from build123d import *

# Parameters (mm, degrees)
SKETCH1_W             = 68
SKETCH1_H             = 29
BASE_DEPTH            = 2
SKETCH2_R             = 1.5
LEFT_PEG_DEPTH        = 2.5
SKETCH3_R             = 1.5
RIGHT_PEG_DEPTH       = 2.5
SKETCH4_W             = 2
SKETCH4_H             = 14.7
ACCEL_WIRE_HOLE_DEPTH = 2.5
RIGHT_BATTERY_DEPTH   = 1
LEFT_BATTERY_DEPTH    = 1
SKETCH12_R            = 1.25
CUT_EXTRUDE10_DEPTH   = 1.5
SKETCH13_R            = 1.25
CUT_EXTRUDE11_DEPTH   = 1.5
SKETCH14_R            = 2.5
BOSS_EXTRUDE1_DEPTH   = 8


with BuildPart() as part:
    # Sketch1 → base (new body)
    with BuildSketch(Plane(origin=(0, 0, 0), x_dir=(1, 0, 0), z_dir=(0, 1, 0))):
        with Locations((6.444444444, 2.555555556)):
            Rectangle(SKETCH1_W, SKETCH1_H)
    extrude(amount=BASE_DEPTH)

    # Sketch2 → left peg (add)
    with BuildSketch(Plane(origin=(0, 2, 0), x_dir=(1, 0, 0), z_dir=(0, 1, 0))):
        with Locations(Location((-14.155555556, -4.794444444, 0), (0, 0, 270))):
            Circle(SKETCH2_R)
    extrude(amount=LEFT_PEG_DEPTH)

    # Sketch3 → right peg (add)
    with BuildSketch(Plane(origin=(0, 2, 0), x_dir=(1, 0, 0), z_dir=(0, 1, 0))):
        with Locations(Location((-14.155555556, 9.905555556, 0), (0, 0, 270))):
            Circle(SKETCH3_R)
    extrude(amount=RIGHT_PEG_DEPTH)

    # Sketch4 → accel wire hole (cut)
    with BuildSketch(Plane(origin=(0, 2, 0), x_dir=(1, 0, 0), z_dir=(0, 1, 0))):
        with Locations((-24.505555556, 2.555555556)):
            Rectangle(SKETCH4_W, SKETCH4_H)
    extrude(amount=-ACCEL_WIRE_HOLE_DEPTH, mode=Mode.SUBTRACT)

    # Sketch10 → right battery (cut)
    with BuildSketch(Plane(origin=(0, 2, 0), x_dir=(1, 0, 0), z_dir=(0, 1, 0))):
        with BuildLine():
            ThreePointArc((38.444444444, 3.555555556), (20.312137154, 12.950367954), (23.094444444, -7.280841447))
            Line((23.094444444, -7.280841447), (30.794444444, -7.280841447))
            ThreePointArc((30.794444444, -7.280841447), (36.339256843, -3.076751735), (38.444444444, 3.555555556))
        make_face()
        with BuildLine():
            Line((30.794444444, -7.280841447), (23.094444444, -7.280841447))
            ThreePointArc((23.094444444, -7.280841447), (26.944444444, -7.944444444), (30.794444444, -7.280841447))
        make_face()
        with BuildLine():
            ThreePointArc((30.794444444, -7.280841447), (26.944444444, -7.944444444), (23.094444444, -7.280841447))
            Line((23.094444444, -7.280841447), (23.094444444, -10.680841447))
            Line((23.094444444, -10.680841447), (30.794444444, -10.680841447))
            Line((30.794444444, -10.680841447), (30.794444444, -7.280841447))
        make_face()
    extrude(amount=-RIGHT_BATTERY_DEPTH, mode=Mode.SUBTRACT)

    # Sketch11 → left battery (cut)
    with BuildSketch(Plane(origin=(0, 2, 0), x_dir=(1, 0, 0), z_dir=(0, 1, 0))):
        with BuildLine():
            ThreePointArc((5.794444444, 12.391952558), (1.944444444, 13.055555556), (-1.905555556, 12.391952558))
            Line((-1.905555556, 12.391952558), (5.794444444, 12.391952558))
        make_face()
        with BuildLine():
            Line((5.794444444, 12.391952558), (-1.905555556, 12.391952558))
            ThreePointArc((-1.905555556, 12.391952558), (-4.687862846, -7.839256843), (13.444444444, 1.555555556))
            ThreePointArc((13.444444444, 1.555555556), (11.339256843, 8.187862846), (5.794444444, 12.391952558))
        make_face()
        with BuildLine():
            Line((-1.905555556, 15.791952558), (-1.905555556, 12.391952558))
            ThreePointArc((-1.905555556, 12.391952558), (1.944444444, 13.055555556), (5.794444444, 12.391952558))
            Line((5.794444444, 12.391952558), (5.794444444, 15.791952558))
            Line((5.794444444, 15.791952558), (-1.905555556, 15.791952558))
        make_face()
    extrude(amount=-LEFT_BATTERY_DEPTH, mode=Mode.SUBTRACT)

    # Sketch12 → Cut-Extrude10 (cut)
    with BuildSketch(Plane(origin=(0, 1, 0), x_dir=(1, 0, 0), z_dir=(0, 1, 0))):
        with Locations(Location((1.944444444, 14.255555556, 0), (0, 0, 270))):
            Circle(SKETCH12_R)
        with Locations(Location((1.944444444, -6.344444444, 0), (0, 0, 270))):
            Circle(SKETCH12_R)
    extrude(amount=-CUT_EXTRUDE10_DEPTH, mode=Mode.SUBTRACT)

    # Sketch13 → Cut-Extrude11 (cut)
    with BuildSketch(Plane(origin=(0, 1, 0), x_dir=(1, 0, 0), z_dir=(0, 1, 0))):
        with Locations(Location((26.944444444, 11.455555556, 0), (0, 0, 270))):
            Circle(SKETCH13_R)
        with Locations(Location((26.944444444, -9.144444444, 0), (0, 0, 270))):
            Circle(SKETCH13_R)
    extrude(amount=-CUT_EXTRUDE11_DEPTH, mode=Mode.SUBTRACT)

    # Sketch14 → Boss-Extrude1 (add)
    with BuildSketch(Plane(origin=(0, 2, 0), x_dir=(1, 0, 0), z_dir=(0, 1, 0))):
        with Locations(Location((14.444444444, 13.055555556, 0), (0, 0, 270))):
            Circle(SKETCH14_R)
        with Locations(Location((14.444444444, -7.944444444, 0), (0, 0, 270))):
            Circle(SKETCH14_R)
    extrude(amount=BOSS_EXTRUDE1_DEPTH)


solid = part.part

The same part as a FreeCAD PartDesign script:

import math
import FreeCAD as App
import Part
import Sketcher

doc = App.newDocument("Part")
body = doc.addObject("PartDesign::Body", "Body")

sketch1 = body.newObject("Sketcher::SketchObject", "Sketch")
sketch1.AttachmentSupport = (doc.getObject("XZ_Plane"), [""])
sketch1.MapMode = "FlatFace"
sketch1.addGeometry([
    Part.LineSegment(App.Vector(-27.555556, -17.055556, 0), App.Vector(-27.555556, 11.944444, 0)),
    Part.LineSegment(App.Vector(-27.555556, 11.944444, 0), App.Vector(40.444444, 11.944444, 0)),
    Part.LineSegment(App.Vector(40.444444, 11.944444, 0), App.Vector(40.444444, -17.055556, 0)),
    Part.LineSegment(App.Vector(40.444444, -17.055556, 0), App.Vector(-27.555556, -17.055556, 0)),
], False)
sketch1.addConstraint([
    Sketcher.Constraint("Coincident", 0, 2, 1, 1),
    Sketcher.Constraint("Coincident", 1, 2, 2, 1),
    Sketcher.Constraint("Coincident", 2, 2, 3, 1),
    Sketcher.Constraint("Coincident", 3, 2, 0, 1),
    Sketcher.Constraint("Vertical", 0),
    Sketcher.Constraint("Horizontal", 1),
    Sketcher.Constraint("Vertical", 2),
    Sketcher.Constraint("Horizontal", 3),
    Sketcher.Constraint("DistanceX", 1, 1, 1, 2, 68.0),
    Sketcher.Constraint("DistanceY", 0, 1, 0, 2, 29.0),
    Sketcher.Constraint("DistanceX", 0, 2, -1, 1, 27.555556),
    Sketcher.Constraint("DistanceY", -1, 1, 0, 2, 11.944444),
])
pad1 = body.newObject("PartDesign::Pad", "Pad")
pad1.Profile = sketch1
pad1.Length = 2
pad1.Reversed = True

sketch2 = body.newObject("Sketcher::SketchObject", "Sketch001")
sketch2.AttachmentSupport = (doc.getObject("XZ_Plane"), [""])
sketch2.MapMode = "FlatFace"
sketch2.AttachmentOffset = App.Placement(App.Vector(0, 0, -2), App.Rotation())
sketch2.addGeometry(Part.Circle(App.Vector(-14.155556, 4.794444, 0), App.Vector(0, 0, 1), 1.5), False)
sketch2.addConstraint([
    Sketcher.Constraint("Diameter", 0, 3.0),
    Sketcher.Constraint("DistanceX", 0, 3, -1, 1, 14.155556),
    Sketcher.Constraint("DistanceY", -1, 1, 0, 3, 4.794444),
])
pad2 = body.newObject("PartDesign::Pad", "Pad001")
pad2.Profile = sketch2
pad2.Length = 2.5
pad2.Reversed = True

sketch3 = body.newObject("Sketcher::SketchObject", "Sketch002")
sketch3.AttachmentSupport = (doc.getObject("XZ_Plane"), [""])
sketch3.MapMode = "FlatFace"
sketch3.AttachmentOffset = App.Placement(App.Vector(0, 0, -2), App.Rotation())
sketch3.addGeometry(Part.Circle(App.Vector(-14.155556, -9.905556, 0), App.Vector(0, 0, 1), 1.5), False)
sketch3.addConstraint([
    Sketcher.Constraint("Diameter", 0, 3.0),
    Sketcher.Constraint("DistanceX", 0, 3, -1, 1, 14.155556),
    Sketcher.Constraint("DistanceY", 0, 3, -1, 1, 9.905556),
])
pad3 = body.newObject("PartDesign::Pad", "Pad002")
pad3.Profile = sketch3
pad3.Length = 2.5
pad3.Reversed = True

sketch4 = body.newObject("Sketcher::SketchObject", "Sketch003")
sketch4.AttachmentSupport = (doc.getObject("XZ_Plane"), [""])
sketch4.MapMode = "FlatFace"
sketch4.AttachmentOffset = App.Placement(App.Vector(0, 0, -2), App.Rotation())
sketch4.addGeometry([
    Part.LineSegment(App.Vector(-25.505556, -9.905556, 0), App.Vector(-25.505556, 4.794444, 0)),
    Part.LineSegment(App.Vector(-25.505556, 4.794444, 0), App.Vector(-23.505556, 4.794444, 0)),
    Part.LineSegment(App.Vector(-23.505556, 4.794444, 0), App.Vector(-23.505556, -9.905556, 0)),
    Part.LineSegment(App.Vector(-23.505556, -9.905556, 0), App.Vector(-25.505556, -9.905556, 0)),
], False)
sketch4.addConstraint([
    Sketcher.Constraint("Coincident", 0, 2, 1, 1),
    Sketcher.Constraint("Coincident", 1, 2, 2, 1),
    Sketcher.Constraint("Coincident", 2, 2, 3, 1),
    Sketcher.Constraint("Coincident", 3, 2, 0, 1),
    Sketcher.Constraint("Vertical", 0),
    Sketcher.Constraint("Horizontal", 1),
    Sketcher.Constraint("Vertical", 2),
    Sketcher.Constraint("Horizontal", 3),
    Sketcher.Constraint("DistanceX", 1, 1, 1, 2, 2.0),
    Sketcher.Constraint("DistanceY", 0, 1, 0, 2, 14.7),
    Sketcher.Constraint("DistanceX", 0, 2, -1, 1, 25.505556),
    Sketcher.Constraint("DistanceY", -1, 1, 0, 2, 4.794444),
])
pocket1 = body.newObject("PartDesign::Pocket", "Pocket")
pocket1.Profile = sketch4
pocket1.Length = 2.5
pocket1.Reversed = True

sketch5 = body.newObject("Sketcher::SketchObject", "Sketch004")
sketch5.AttachmentSupport = (doc.getObject("XZ_Plane"), [""])
sketch5.MapMode = "FlatFace"
sketch5.AttachmentOffset = App.Placement(App.Vector(0, 0, -2), App.Rotation())
sketch5.addGeometry([
    Part.ArcOfCircle(Part.Circle(App.Vector(26.944444, -3.555556, 0), App.Vector(0, 0, 1), 11.5), math.radians(109.559319), math.radians(360)),
    Part.LineSegment(App.Vector(23.094444, 7.280841, 0), App.Vector(23.094444, 10.680841, 0)),
    Part.LineSegment(App.Vector(23.094444, 10.680841, 0), App.Vector(30.794444, 10.680841, 0)),
    Part.LineSegment(App.Vector(30.794444, 10.680841, 0), App.Vector(30.794444, 7.280841, 0)),
    Part.ArcOfCircle(Part.Circle(App.Vector(26.944444, -3.555556, 0), App.Vector(0, 0, 1), 11.5), math.radians(0), math.radians(70.440681)),
], False)
sketch5.addConstraint([
    Sketcher.Constraint("Coincident", 0, 1, 1, 1),
    Sketcher.Constraint("Coincident", 1, 2, 2, 1),
    Sketcher.Constraint("Coincident", 2, 2, 3, 1),
    Sketcher.Constraint("Coincident", 3, 2, 4, 2),
    Sketcher.Constraint("Tangent", 4, 1, 0, 2),
    Sketcher.Constraint("Vertical", 1),
    Sketcher.Constraint("Horizontal", 2),
    Sketcher.Constraint("Vertical", 3),
    Sketcher.Constraint("Equal", 0, 4),
    Sketcher.Constraint("Horizontal", 0, 1, 3, 2),
    Sketcher.Constraint("Horizontal", 0, 3, 4, 1),
    Sketcher.Constraint("Radius", 0, 11.5),
    Sketcher.Constraint("DistanceX", 2, 1, 2, 2, 7.7),
    Sketcher.Constraint("DistanceY", 1, 1, 1, 2, 3.4),
    Sketcher.Constraint("DistanceY", -1, 1, 0, 1, 7.280841),
    Sketcher.Constraint("DistanceX", -1, 1, 0, 3, 26.944444),
])
pocket2 = body.newObject("PartDesign::Pocket", "Pocket001")
pocket2.Profile = sketch5
pocket2.Length = 1
pocket2.Reversed = True

sketch6 = body.newObject("Sketcher::SketchObject", "Sketch005")
sketch6.AttachmentSupport = (doc.getObject("XZ_Plane"), [""])
sketch6.MapMode = "FlatFace"
sketch6.AttachmentOffset = App.Placement(App.Vector(0, 0, -2), App.Rotation())
sketch6.addGeometry([
    Part.ArcOfCircle(Part.Circle(App.Vector(1.944444, -1.555556, 0), App.Vector(0, 0, 1), 11.5), math.radians(0), math.radians(250.440681)),
    Part.ArcOfCircle(Part.Circle(App.Vector(1.944444, -1.555556, 0), App.Vector(0, 0, 1), 11.5), math.radians(-70.440681), math.radians(0)),
    Part.LineSegment(App.Vector(5.794444, -12.391953, 0), App.Vector(5.794444, -15.791953, 0)),
    Part.LineSegment(App.Vector(5.794444, -15.791953, 0), App.Vector(-1.905556, -15.791953, 0)),
    Part.LineSegment(App.Vector(-1.905556, -15.791953, 0), App.Vector(-1.905556, -12.391953, 0)),
], False)
sketch6.addConstraint([
    Sketcher.Constraint("Tangent", 0, 1, 1, 2),
    Sketcher.Constraint("Coincident", 1, 1, 2, 1),
    Sketcher.Constraint("Coincident", 2, 2, 3, 1),
    Sketcher.Constraint("Coincident", 3, 2, 4, 1),
    Sketcher.Constraint("Coincident", 4, 2, 0, 2),
    Sketcher.Constraint("Vertical", 2),
    Sketcher.Constraint("Horizontal", 3),
    Sketcher.Constraint("Vertical", 4),
    Sketcher.Constraint("Equal", 0, 1),
    Sketcher.Constraint("Horizontal", 1, 3, 0, 1),
    Sketcher.Constraint("Horizontal", 1, 1, 4, 2),
    Sketcher.Constraint("Radius", 0, 11.5),
    Sketcher.Constraint("DistanceX", 3, 2, 3, 1, 7.7),
    Sketcher.Constraint("DistanceY", 2, 2, 2, 1, 3.4),
    Sketcher.Constraint("DistanceX", -1, 1, 0, 3, 1.944444),
    Sketcher.Constraint("DistanceY", 0, 3, -1, 1, 1.555556),
])
pocket3 = body.newObject("PartDesign::Pocket", "Pocket002")
pocket3.Profile = sketch6
pocket3.Length = 1
pocket3.Reversed = True

sketch7 = body.newObject("Sketcher::SketchObject", "Sketch006")
sketch7.AttachmentSupport = (doc.getObject("XZ_Plane"), [""])
sketch7.MapMode = "FlatFace"
sketch7.AttachmentOffset = App.Placement(App.Vector(0, 0, -1), App.Rotation())
sketch7.addGeometry([
    Part.Circle(App.Vector(1.944444, -14.255556, 0), App.Vector(0, 0, 1), 1.25),
    Part.Circle(App.Vector(1.944444, 6.344444, 0), App.Vector(0, 0, 1), 1.25),
], False)
sketch7.addConstraint([
    Sketcher.Constraint("Equal", 0, 1),
    Sketcher.Constraint("Vertical", 0, 3, 1, 3),
    Sketcher.Constraint("Diameter", 0, 2.5),
    Sketcher.Constraint("DistanceY", 0, 3, 1, 3, 20.6),
    Sketcher.Constraint("DistanceX", -1, 1, 0, 3, 1.944444),
    Sketcher.Constraint("DistanceY", 0, 3, -1, 1, 14.255556),
])
pocket4 = body.newObject("PartDesign::Pocket", "Pocket003")
pocket4.Profile = sketch7
pocket4.Length = 1.5
pocket4.Reversed = True

sketch8 = body.newObject("Sketcher::SketchObject", "Sketch007")
sketch8.AttachmentSupport = (doc.getObject("XZ_Plane"), [""])
sketch8.MapMode = "FlatFace"
sketch8.AttachmentOffset = App.Placement(App.Vector(0, 0, -1), App.Rotation())
sketch8.addGeometry([
    Part.Circle(App.Vector(26.944444, -11.455556, 0), App.Vector(0, 0, 1), 1.25),
    Part.Circle(App.Vector(26.944444, 9.144444, 0), App.Vector(0, 0, 1), 1.25),
], False)
sketch8.addConstraint([
    Sketcher.Constraint("Equal", 0, 1),
    Sketcher.Constraint("Vertical", 0, 3, 1, 3),
    Sketcher.Constraint("Diameter", 0, 2.5),
    Sketcher.Constraint("DistanceY", 0, 3, 1, 3, 20.6),
    Sketcher.Constraint("DistanceX", -1, 1, 0, 3, 26.944444),
    Sketcher.Constraint("DistanceY", 0, 3, -1, 1, 11.455556),
])
pocket5 = body.newObject("PartDesign::Pocket", "Pocket004")
pocket5.Profile = sketch8
pocket5.Length = 1.5
pocket5.Reversed = True

sketch9 = body.newObject("Sketcher::SketchObject", "Sketch008")
sketch9.AttachmentSupport = (doc.getObject("XZ_Plane"), [""])
sketch9.MapMode = "FlatFace"
sketch9.AttachmentOffset = App.Placement(App.Vector(0, 0, -2), App.Rotation())
sketch9.addGeometry([
    Part.Circle(App.Vector(14.444444, -13.055556, 0), App.Vector(0, 0, 1), 2.5),
    Part.Circle(App.Vector(14.444444, 7.944444, 0), App.Vector(0, 0, 1), 2.5),
], False)
sketch9.addConstraint([
    Sketcher.Constraint("Equal", 0, 1),
    Sketcher.Constraint("Vertical", 0, 3, 1, 3),
    Sketcher.Constraint("Diameter", 0, 5.0),
    Sketcher.Constraint("DistanceY", 0, 3, 1, 3, 21.0),
    Sketcher.Constraint("DistanceX", -1, 1, 0, 3, 14.444444),
    Sketcher.Constraint("DistanceY", 0, 3, -1, 1, 13.055556),
])
pad4 = body.newObject("PartDesign::Pad", "Pad003")
pad4.Profile = sketch9
pad4.Length = 8
pad4.Reversed = True

doc.recompute()
